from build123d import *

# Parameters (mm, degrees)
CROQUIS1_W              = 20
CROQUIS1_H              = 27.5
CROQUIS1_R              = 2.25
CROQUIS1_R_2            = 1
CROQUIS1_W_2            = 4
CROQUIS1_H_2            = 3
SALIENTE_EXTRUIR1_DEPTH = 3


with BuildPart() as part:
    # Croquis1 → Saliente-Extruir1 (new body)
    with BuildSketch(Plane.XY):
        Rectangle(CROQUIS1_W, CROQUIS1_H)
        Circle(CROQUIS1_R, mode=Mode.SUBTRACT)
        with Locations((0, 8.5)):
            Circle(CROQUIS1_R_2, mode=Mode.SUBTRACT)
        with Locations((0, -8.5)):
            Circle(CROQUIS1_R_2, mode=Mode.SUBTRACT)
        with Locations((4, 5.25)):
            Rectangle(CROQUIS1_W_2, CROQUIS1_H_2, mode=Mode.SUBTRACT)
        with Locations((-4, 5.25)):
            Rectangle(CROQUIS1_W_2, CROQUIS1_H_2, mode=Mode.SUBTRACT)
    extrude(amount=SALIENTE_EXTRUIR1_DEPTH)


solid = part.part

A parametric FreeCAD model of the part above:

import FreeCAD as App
import Part
import Sketcher
Q = App.Units.Quantity

doc = App.newDocument("Part")
body = doc.addObject("PartDesign::Body", "Body")

# Sketch on XY plane
sketch1 = doc.addObject("Sketcher::SketchObject", "Sketch")
body.addObject(sketch1)
sketch1.AttachmentSupport = (doc.XY_Plane, [""])
sketch1.MapMode = "FlatFace"
sketch1.addGeometry([
    Part.LineSegment(App.Vector(-10, 13.75, 0), App.Vector(-10, -13.75, 0)),  # 0
    Part.LineSegment(App.Vector(-10, -13.75, 0), App.Vector(10, -13.75, 0)),  # 1
    Part.LineSegment(App.Vector(10, -13.75, 0), App.Vector(10, 13.75, 0)),  # 2
    Part.LineSegment(App.Vector(10, 13.75, 0), App.Vector(-10, 13.75, 0)),  # 3
    Part.Circle(App.Vector(0, -8.5, 0), App.Vector(0, 0, 1), 1),  # 4
    Part.LineSegment(App.Vector(-2, 3.75, 0), App.Vector(-6, 3.75, 0)),  # 5
    Part.LineSegment(App.Vector(-6, 3.75, 0), App.Vector(-6, 6.75, 0)),  # 6
    Part.LineSegment(App.Vector(-6, 6.75, 0), App.Vector(-2, 6.75, 0)),  # 7
    Part.LineSegment(App.Vector(-2, 6.75, 0), App.Vector(-2, 3.75, 0)),  # 8
    Part.Circle(App.Vector(0, 0, 0), App.Vector(0, 0, 1), 2.25),  # 9
    Part.Circle(App.Vector(0, 8.5, 0), App.Vector(0, 0, 1), 1),  # 10
    Part.LineSegment(App.Vector(6, 3.75, 0), App.Vector(2, 3.75, 0)),  # 11
    Part.LineSegment(App.Vector(2, 3.75, 0), App.Vector(2, 6.75, 0)),  # 12
    Part.LineSegment(App.Vector(2, 6.75, 0), App.Vector(6, 6.75, 0)),  # 13
    Part.LineSegment(App.Vector(6, 6.75, 0), App.Vector(6, 3.75, 0)),  # 14
], False)
sketch1.addConstraint([
    Sketcher.Constraint("Coincident", 0, 2, 1, 1),
    Sketcher.Constraint("Coincident", 1, 2, 2, 1),
    Sketcher.Constraint("Coincident", 2, 2, 3, 1),
    Sketcher.Constraint("Coincident", 3, 2, 0, 1),
    Sketcher.Constraint("Coincident", 5, 2, 6, 1),
    Sketcher.Constraint("Coincident", 6, 2, 7, 1),
    Sketcher.Constraint("Coincident", 7, 2, 8, 1),
    Sketcher.Constraint("Coincident", 8, 2, 5, 1),
    Sketcher.Constraint("Coincident", 11, 2, 12, 1),
    Sketcher.Constraint("Coincident", 12, 2, 13, 1),
    Sketcher.Constraint("Coincident", 13, 2, 14, 1),
    Sketcher.Constraint("Coincident", 14, 2, 11, 1),
    Sketcher.Constraint("Vertical", 0),
    Sketcher.Constraint("Horizontal", 1),
    Sketcher.Constraint("Vertical", 2),
    Sketcher.Constraint("Horizontal", 3),
    Sketcher.Constraint("Horizontal", 5),
    Sketcher.Constraint("Vertical", 6),
    Sketcher.Constraint("Horizontal", 7),
    Sketcher.Constraint("Vertical", 8),
    Sketcher.Constraint("Horizontal", 11),
    Sketcher.Constraint("Vertical", 12),
    Sketcher.Constraint("Horizontal", 13),
    Sketcher.Constraint("Vertical", 14),
    Sketcher.Constraint("Coincident", 9, 3, -1, 1),
    Sketcher.Constraint("Equal", 4, 10),
    Sketcher.Constraint("Symmetric", 4, 3, 10, 3, -1, 1),
    Sketcher.Constraint("Symmetric", 0, 2, 2, 2, -1, 1),
    Sketcher.Constraint("Symmetric", 8, 2, 11, 2, -2),
    Sketcher.Constraint("Symmetric", 6, 2, 13, 2, -2),
    Sketcher.Constraint("PointOnObject", 4, 3, -2),
    Sketcher.Constraint("Diameter", 4, Q("2 mm")),
    Sketcher.Constraint("Diameter", 9, Q("4.5 mm")),
    Sketcher.Constraint("DistanceX", 1, 1, 1, 2, Q("20 mm")),
    Sketcher.Constraint("DistanceX", 5, 2, 5, 1, Q("4 mm")),
    Sketcher.Constraint("DistanceY", 6, 1, 6, 2, Q("3 mm")),
    Sketcher.Constraint("DistanceY", 0, 2, 0, 1, Q("27.5 mm")),
    Sketcher.Constraint("DistanceX", 5, 2, -1, 1, Q("6 mm")),
    Sketcher.Constraint("DistanceY", 4, 3, 10, 3, Q("17 mm")),
    Sketcher.Constraint("DistanceY", 5, 2, 3, 2, Q("10 mm")),
])
pad1 = doc.addObject("PartDesign::Pad", "Pad")
body.addObject(pad1)
pad1.Profile = sketch1
pad1.Length = 3

doc.recompute()
